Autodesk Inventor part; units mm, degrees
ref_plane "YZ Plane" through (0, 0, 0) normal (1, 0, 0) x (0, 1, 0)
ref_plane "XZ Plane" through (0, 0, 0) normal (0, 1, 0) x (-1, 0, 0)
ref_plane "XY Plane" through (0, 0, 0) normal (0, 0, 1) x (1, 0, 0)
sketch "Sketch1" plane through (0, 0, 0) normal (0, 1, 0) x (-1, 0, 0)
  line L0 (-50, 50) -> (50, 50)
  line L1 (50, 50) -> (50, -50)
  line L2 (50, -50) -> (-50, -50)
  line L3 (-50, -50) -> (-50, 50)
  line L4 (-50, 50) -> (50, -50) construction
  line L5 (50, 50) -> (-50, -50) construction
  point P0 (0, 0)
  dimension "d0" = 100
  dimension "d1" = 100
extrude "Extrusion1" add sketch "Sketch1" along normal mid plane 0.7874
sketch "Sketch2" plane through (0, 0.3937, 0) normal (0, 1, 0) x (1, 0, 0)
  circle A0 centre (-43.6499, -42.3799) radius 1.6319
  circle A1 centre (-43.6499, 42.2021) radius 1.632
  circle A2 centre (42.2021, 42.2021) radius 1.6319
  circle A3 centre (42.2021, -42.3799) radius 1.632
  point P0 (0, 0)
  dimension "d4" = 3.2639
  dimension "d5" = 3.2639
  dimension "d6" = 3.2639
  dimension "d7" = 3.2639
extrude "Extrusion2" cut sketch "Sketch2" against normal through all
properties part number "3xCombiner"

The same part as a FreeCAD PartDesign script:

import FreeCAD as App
import Part
import Sketcher
from FreeCAD import Vector
Q = App.Units.Quantity


def add_polygon(sketch, points):
    """Adds a closed chain of lines whose ends are joined by coincident constraints."""
    first, n = sketch.GeometryCount, len(points)
    for a, b in zip(points, points[1:] + points[:1]):
        sketch.addGeometry(Part.LineSegment(App.Vector(*a, 0), App.Vector(*b, 0)), False)
    for i in range(n):
        sketch.addConstraint(Sketcher.Constraint("Coincident", first + i, 2, first + (i + 1) % n, 1))

doc = App.newDocument("Part")
body = doc.addObject("PartDesign::Body", "Body")

sketch1 = body.newObject("Sketcher::SketchObject", "Sketch")
sketch1.AttachmentSupport = (doc.getObject("XZ_Plane"), [""])
sketch1.MapMode = "FlatFace"
add_polygon(sketch1, [(-50, 50), (50, 50), (50, -50), (-50, -50)])
sketch1.addConstraint([
    Sketcher.Constraint("Horizontal", 0),
    Sketcher.Constraint("Vertical", 1),
    Sketcher.Constraint("Horizontal", 2),
    Sketcher.Constraint("Vertical", 3),
    Sketcher.Constraint("Symmetric", 0, 2, 2, 2, -1, 1),
    Sketcher.Constraint("Equal", 2, 1),
    Sketcher.Constraint("DistanceX", 0, 1, 0, 2, Q("3.937 in")),
])
pad1 = body.newObject("PartDesign::Pad", "Pad")
pad1.Profile = sketch1
pad1.Length = Q("0.031 in")
pad1.Midplane = True

sketch2 = body.newObject("Sketcher::SketchObject", "Sketch001")
sketch2.AttachmentSupport = (doc.getObject("XZ_Plane"), [""])
sketch2.MapMode = "FlatFace"
sketch2.AttachmentOffset = App.Placement(Vector(0, 0, -0.0155 * 25.4), App.Rotation())
sketch2.addGeometry([
    Part.Circle(Vector(-43.6, 42.4, 0), Vector(0, 0, 1), 1.6),
    Part.Circle(Vector(-43.6, -42.2, 0), Vector(0, 0, 1), 1.6),
    Part.Circle(Vector(42.2, -42.2, 0), Vector(0, 0, 1), 1.6),
    Part.Circle(Vector(42.2, 42.4, 0), Vector(0, 0, 1), 1.6),
], False)
sketch2.addConstraint([
    Sketcher.Constraint("Equal", 0, 1),
    Sketcher.Constraint("Equal", 1, 2),
    Sketcher.Constraint("Equal", 2, 3),
    Sketcher.Constraint("Horizontal", 1, 3, 2, 3),
    Sketcher.Constraint("Horizontal", 0, 3, 3, 3),
    Sketcher.Constraint("Vertical", 0, 3, 1, 3),
    Sketcher.Constraint("Vertical", 2, 3, 3, 3),
    Sketcher.Constraint("Diameter", 0, Q("0.1285 in")),
    Sketcher.Constraint("DistanceY", 1, 3, 0, 3, Q("3.33 in")),
    Sketcher.Constraint("DistanceX", 1, 3, 2, 3, Q("3.38 in")),
    Sketcher.Constraint("DistanceX", 0, 3, -1, 1, Q("1.7185 in")),
    Sketcher.Constraint("DistanceY", -1, 1, 0, 3, Q("1.6685 in")),
])
pocket1 = body.newObject("PartDesign::Pocket", "Pocket")
pocket1.Profile = sketch2
pocket1.Type = "ThroughAll"
pocket1.Reversed = True

doc.recompute()
